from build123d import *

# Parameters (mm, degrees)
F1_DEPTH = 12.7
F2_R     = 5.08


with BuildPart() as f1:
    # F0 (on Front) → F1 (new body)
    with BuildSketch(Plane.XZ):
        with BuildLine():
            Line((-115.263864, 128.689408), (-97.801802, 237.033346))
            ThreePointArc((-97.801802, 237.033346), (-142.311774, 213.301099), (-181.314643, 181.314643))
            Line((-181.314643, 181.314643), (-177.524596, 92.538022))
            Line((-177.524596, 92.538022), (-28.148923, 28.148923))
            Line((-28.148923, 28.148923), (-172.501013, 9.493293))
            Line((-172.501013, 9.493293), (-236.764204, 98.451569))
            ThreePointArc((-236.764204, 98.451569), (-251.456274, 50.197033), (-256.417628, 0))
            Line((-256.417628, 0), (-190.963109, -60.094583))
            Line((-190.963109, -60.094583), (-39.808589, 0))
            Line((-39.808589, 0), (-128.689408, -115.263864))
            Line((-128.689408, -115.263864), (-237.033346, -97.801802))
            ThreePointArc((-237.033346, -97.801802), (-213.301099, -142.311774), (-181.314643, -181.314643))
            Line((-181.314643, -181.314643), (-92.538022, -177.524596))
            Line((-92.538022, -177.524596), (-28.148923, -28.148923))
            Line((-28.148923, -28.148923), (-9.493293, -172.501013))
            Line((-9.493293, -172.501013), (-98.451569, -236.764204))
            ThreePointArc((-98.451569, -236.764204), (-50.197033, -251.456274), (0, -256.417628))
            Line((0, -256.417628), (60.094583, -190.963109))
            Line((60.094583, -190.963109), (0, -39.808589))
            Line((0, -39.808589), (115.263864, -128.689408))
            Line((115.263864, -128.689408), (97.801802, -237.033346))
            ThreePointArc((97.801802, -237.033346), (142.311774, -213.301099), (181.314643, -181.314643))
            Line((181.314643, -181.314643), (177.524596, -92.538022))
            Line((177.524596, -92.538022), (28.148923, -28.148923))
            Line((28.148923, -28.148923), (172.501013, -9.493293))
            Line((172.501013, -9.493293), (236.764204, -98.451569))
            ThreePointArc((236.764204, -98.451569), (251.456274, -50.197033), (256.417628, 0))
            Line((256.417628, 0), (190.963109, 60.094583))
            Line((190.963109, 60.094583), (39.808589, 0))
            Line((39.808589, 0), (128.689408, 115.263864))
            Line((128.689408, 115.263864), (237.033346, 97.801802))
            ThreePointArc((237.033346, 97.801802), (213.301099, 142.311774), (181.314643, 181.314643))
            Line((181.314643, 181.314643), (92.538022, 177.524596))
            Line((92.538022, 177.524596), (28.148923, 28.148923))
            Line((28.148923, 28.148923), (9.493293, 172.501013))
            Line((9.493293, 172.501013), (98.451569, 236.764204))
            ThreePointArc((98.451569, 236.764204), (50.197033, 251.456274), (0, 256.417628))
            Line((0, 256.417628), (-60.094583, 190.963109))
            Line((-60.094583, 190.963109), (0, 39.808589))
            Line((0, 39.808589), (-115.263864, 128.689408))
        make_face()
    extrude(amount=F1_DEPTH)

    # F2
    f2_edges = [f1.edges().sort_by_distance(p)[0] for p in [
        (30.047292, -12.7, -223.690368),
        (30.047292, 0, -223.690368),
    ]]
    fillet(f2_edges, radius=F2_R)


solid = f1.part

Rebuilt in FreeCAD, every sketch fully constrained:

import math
import FreeCAD as App
import Part
import Sketcher

V = App.Vector
Q = App.Units.Quantity


def edges_at(feature, points):
    """Names of the edges that pass closest to the given points."""
    edges = feature.Shape.Edges
    near = lambda p: min(range(len(edges)), key=lambda i: edges[i].distToShape(Part.Vertex(*p))[0])
    return sorted({f"Edge{near(p) + 1}" for p in points})

doc = App.newDocument("Part")
body = doc.addObject("PartDesign::Body", "Body")

# Sketch on XZ plane
sketch1 = body.newObject("Sketcher::SketchObject", "Sketch")
sketch1.AttachmentSupport = (doc.getObject("XZ_Plane"), [""])
sketch1.MapMode = "FlatFace"
sketch1.addGeometry(Part.LineSegment(V(-115, 129, 0), V(-98, 237, 0)), False)
sketch1.addGeometry(Part.ArcOfCircle(Part.Circle(V(0, 0, 0), V(0, 0, 1), 256), math.radians(112), math.radians(135)), False)
sketch1.addGeometry(Part.LineSegment(V(-181, 181, 0), V(-178, 93, 0)), False)
sketch1.addGeometry(Part.LineSegment(V(-178, 93, 0), V(-28, 28, 0)), False)
sketch1.addGeometry(Part.LineSegment(V(-28, 28, 0), V(-173, 9, 0)), False)
sketch1.addGeometry(Part.LineSegment(V(-173, 9, 0), V(-237, 98, 0)), False)
sketch1.addGeometry(Part.ArcOfCircle(Part.Circle(V(0, 0, 0), V(0, 0, 1), 256), math.radians(157), math.radians(180)), False)
sketch1.addGeometry(Part.LineSegment(V(-256, 0, 0), V(-191, -60, 0)), False)
sketch1.addGeometry(Part.LineSegment(V(-191, -60, 0), V(-40, 0, 0)), False)
sketch1.addGeometry(Part.LineSegment(V(-40, 0, 0), V(-129, -115, 0)), False)
sketch1.addGeometry(Part.LineSegment(V(-129, -115, 0), V(-237, -98, 0)), False)
sketch1.addGeometry(Part.ArcOfCircle(Part.Circle(V(0, 0, 0), V(0, 0, 1), 256), math.radians(-158), math.radians(-135)), False)
sketch1.addGeometry(Part.LineSegment(V(-181, -181, 0), V(-93, -178, 0)), False)
sketch1.addGeometry(Part.LineSegment(V(-93, -178, 0), V(-28, -28, 0)), False)
sketch1.addGeometry(Part.LineSegment(V(-28, -28, 0), V(-9, -173, 0)), False)
sketch1.addGeometry(Part.LineSegment(V(-9, -173, 0), V(-98, -237, 0)), False)
sketch1.addGeometry(Part.ArcOfCircle(Part.Circle(V(0, 0, 0), V(0, 0, 1), 256), math.radians(-113), math.radians(-90)), False)
sketch1.addGeometry(Part.LineSegment(V(0, -256, 0), V(60, -191, 0)), False)
sketch1.addGeometry(Part.LineSegment(V(60, -191, 0), V(0, -40, 0)), False)
sketch1.addGeometry(Part.LineSegment(V(0, -40, 0), V(115, -129, 0)), False)
sketch1.addGeometry(Part.LineSegment(V(115, -129, 0), V(98, -237, 0)), False)
sketch1.addGeometry(Part.ArcOfCircle(Part.Circle(V(0, 0, 0), V(0, 0, 1), 256), math.radians(-68), math.radians(-45)), False)
sketch1.addGeometry(Part.LineSegment(V(181, -181, 0), V(178, -93, 0)), False)
sketch1.addGeometry(Part.LineSegment(V(178, -93, 0), V(28, -28, 0)), False)
sketch1.addGeometry(Part.LineSegment(V(28, -28, 0), V(173, -9, 0)), False)
sketch1.addGeometry(Part.LineSegment(V(173, -9, 0), V(237, -98, 0)), False)
sketch1.addGeometry(Part.ArcOfCircle(Part.Circle(V(0, 0, 0), V(0, 0, 1), 256), math.radians(-23), math.radians(0)), False)
sketch1.addGeometry(Part.LineSegment(V(256, 0, 0), V(191, 60, 0)), False)
sketch1.addGeometry(Part.LineSegment(V(191, 60, 0), V(40, 0, 0)), False)
sketch1.addGeometry(Part.LineSegment(V(40, 0, 0), V(129, 115, 0)), False)
sketch1.addGeometry(Part.LineSegment(V(129, 115, 0), V(237, 98, 0)), False)
sketch1.addGeometry(Part.ArcOfCircle(Part.Circle(V(0, 0, 0), V(0, 0, 1), 256), math.radians(22), math.radians(45)), False)
sketch1.addGeometry(Part.LineSegment(V(181, 181, 0), V(93, 178, 0)), False)
sketch1.addGeometry(Part.LineSegment(V(93, 178, 0), V(28, 28, 0)), False)
sketch1.addGeometry(Part.LineSegment(V(28, 28, 0), V(9, 173, 0)), False)
sketch1.addGeometry(Part.LineSegment(V(9, 173, 0), V(98, 237, 0)), False)
sketch1.addGeometry(Part.ArcOfCircle(Part.Circle(V(0, 0, 0), V(0, 0, 1), 256), math.radians(67), math.radians(90)), False)
sketch1.addGeometry(Part.LineSegment(V(0, 256, 0), V(-60, 191, 0)), False)
sketch1.addGeometry(Part.LineSegment(V(-60, 191, 0), V(0, 40, 0)), False)
sketch1.addGeometry(Part.LineSegment(V(0, 40, 0), V(-115, 129, 0)), False)
sketch1.addConstraint(Sketcher.Constraint("Coincident", 0, 2, 1, 1))
sketch1.addConstraint(Sketcher.Constraint("Coincident", 1, 2, 2, 1))
sketch1.addConstraint(Sketcher.Constraint("Coincident", 2, 2, 3, 1))
sketch1.addConstraint(Sketcher.Constraint("Coincident", 3, 2, 4, 1))
sketch1.addConstraint(Sketcher.Constraint("Coincident", 4, 2, 5, 1))
sketch1.addConstraint(Sketcher.Constraint("Coincident", 5, 2, 6, 1))
sketch1.addConstraint(Sketcher.Constraint("Coincident", 6, 2, 7, 1))
sketch1.addConstraint(Sketcher.Constraint("Coincident", 7, 2, 8, 1))
sketch1.addConstraint(Sketcher.Constraint("Coincident", 8, 2, 9, 1))
sketch1.addConstraint(Sketcher.Constraint("Coincident", 9, 2, 10, 1))
sketch1.addConstraint(Sketcher.Constraint("Coincident", 10, 2, 11, 1))
sketch1.addConstraint(Sketcher.Constraint("Coincident", 11, 2, 12, 1))
sketch1.addConstraint(Sketcher.Constraint("Coincident", 12, 2, 13, 1))
sketch1.addConstraint(Sketcher.Constraint("Coincident", 13, 2, 14, 1))
sketch1.addConstraint(Sketcher.Constraint("Coincident", 14, 2, 15, 1))
sketch1.addConstraint(Sketcher.Constraint("Coincident", 15, 2, 16, 1))
sketch1.addConstraint(Sketcher.Constraint("Coincident", 16, 2, 17, 1))
sketch1.addConstraint(Sketcher.Constraint("Coincident", 17, 2, 18, 1))
sketch1.addConstraint(Sketcher.Constraint("Coincident", 18, 2, 19, 1))
sketch1.addConstraint(Sketcher.Constraint("Coincident", 19, 2, 20, 1))
sketch1.addConstraint(Sketcher.Constraint("Coincident", 20, 2, 21, 1))
sketch1.addConstraint(Sketcher.Constraint("Coincident", 21, 2, 22, 1))
sketch1.addConstraint(Sketcher.Constraint("Coincident", 22, 2, 23, 1))
sketch1.addConstraint(Sketcher.Constraint("Coincident", 23, 2, 24, 1))
sketch1.addConstraint(Sketcher.Constraint("Coincident", 24, 2, 25, 1))
sketch1.addConstraint(Sketcher.Constraint("Coincident", 25, 2, 26, 1))
sketch1.addConstraint(Sketcher.Constraint("Coincident", 26, 2, 27, 1))
sketch1.addConstraint(Sketcher.Constraint("Coincident", 27, 2, 28, 1))
sketch1.addConstraint(Sketcher.Constraint("Coincident", 28, 2, 29, 1))
sketch1.addConstraint(Sketcher.Constraint("Coincident", 29, 2, 30, 1))
sketch1.addConstraint(Sketcher.Constraint("Coincident", 30, 2, 31, 1))
sketch1.addConstraint(Sketcher.Constraint("Coincident", 31, 2, 32, 1))
sketch1.addConstraint(Sketcher.Constraint("Coincident", 32, 2, 33, 1))
sketch1.addConstraint(Sketcher.Constraint("Coincident", 33, 2, 34, 1))
sketch1.addConstraint(Sketcher.Constraint("Coincident", 34, 2, 35, 1))
sketch1.addConstraint(Sketcher.Constraint("Coincident", 35, 2, 36, 1))
sketch1.addConstraint(Sketcher.Constraint("Coincident", 36, 2, 37, 1))
sketch1.addConstraint(Sketcher.Constraint("Coincident", 37, 2, 38, 1))
sketch1.addConstraint(Sketcher.Constraint("Coincident", 38, 2, 39, 1))
sketch1.addConstraint(Sketcher.Constraint("Coincident", 39, 2, 0, 1))
sketch1.addConstraint(Sketcher.Constraint("Coincident", 6, 3, -1, 1))
sketch1.addConstraint(Sketcher.Constraint("Coincident", 16, 3, -1, 1))
sketch1.addConstraint(Sketcher.Constraint("Coincident", 26, 3, -1, 1))
sketch1.addConstraint(Sketcher.Constraint("Coincident", 36, 3, -1, 1))
sketch1.addConstraint(Sketcher.Constraint("Equal", 1, 11))
sketch1.addConstraint(Sketcher.Constraint("Equal", 6, 16))
sketch1.addConstraint(Sketcher.Constraint("Equal", 11, 21))
sketch1.addConstraint(Sketcher.Constraint("Equal", 16, 26))
sketch1.addConstraint(Sketcher.Constraint("Equal", 21, 31))
sketch1.addConstraint(Sketcher.Constraint("Equal", 26, 36))
sketch1.addConstraint(Sketcher.Constraint("Symmetric", 1, 3, 21, 3, -1, 1))
sketch1.addConstraint(Sketcher.Constraint("Symmetric", 11, 3, 31, 3, -1, 1))
sketch1.addConstraint(Sketcher.Constraint("Symmetric", 2, 2, 22, 2, -1, 1))
sketch1.addConstraint(Sketcher.Constraint("Symmetric", 3, 2, 23, 2, -1, 1))
sketch1.addConstraint(Sketcher.Constraint("Symmetric", 4, 2, 24, 2, -1, 1))
sketch1.addConstraint(Sketcher.Constraint("Symmetric", 7, 2, 27, 2, -1, 1))
sketch1.addConstraint(Sketcher.Constraint("Symmetric", 8, 2, 28, 2, -1, 1))
sketch1.addConstraint(Sketcher.Constraint("Symmetric", 9, 2, 29, 2, -1, 1))
sketch1.addConstraint(Sketcher.Constraint("Symmetric", 12, 2, 32, 2, -1, 1))
sketch1.addConstraint(Sketcher.Constraint("Symmetric", 13, 2, 33, 2, -1, 1))
sketch1.addConstraint(Sketcher.Constraint("Symmetric", 14, 2, 34, 2, -1, 1))
sketch1.addConstraint(Sketcher.Constraint("Symmetric", 17, 2, 37, 2, -1, 1))
sketch1.addConstraint(Sketcher.Constraint("Symmetric", 18, 2, 38, 2, -1, 1))
sketch1.addConstraint(Sketcher.Constraint("Symmetric", 19, 2, 39, 2, -1, 1))
sketch1.addConstraint(Sketcher.Constraint("Symmetric", 11, 2, 21, 2, -2))
sketch1.addConstraint(Sketcher.Constraint("Symmetric", 13, 2, 23, 2, -2))
sketch1.addConstraint(Sketcher.Constraint("PointOnObject", 6, 2, -1))
sketch1.addConstraint(Sketcher.Constraint("PointOnObject", 8, 2, -1))
sketch1.addConstraint(Sketcher.Constraint("PointOnObject", 16, 2, -2))
sketch1.addConstraint(Sketcher.Constraint("PointOnObject", 18, 2, -2))
sketch1.addConstraint(Sketcher.Constraint("PointOnObject", 26, 2, -1))
sketch1.addConstraint(Sketcher.Constraint("PointOnObject", 36, 2, -2))
sketch1.addConstraint(Sketcher.Constraint("Perpendicular", 0, 10))
sketch1.addConstraint(Sketcher.Constraint("Perpendicular", 2, 12))
sketch1.addConstraint(Sketcher.Constraint("Perpendicular", 3, 13))
sketch1.addConstraint(Sketcher.Constraint("Perpendicular", 4, 14))
sketch1.addConstraint(Sketcher.Constraint("Perpendicular", 5, 15))
sketch1.addConstraint(Sketcher.Constraint("Perpendicular", 7, 17))
sketch1.addConstraint(Sketcher.Constraint("Perpendicular", 8, 18))
sketch1.addConstraint(Sketcher.Constraint("Perpendicular", 9, 19))
sketch1.addConstraint(Sketcher.Constraint("Perpendicular", 10, 20))
sketch1.addConstraint(Sketcher.Constraint("Perpendicular", 12, 22))
sketch1.addConstraint(Sketcher.Constraint("Perpendicular", 15, 25))
sketch1.addConstraint(Sketcher.Constraint("Perpendicular", 20, 30))
sketch1.addConstraint(Sketcher.Constraint("Perpendicular", 22, 32))
sketch1.addConstraint(Sketcher.Constraint("Perpendicular", 25, 35))
sketch1.addConstraint(Sketcher.Constraint("Equal", 0, 5))
sketch1.addConstraint(Sketcher.Constraint("Equal", 2, 7))
sketch1.addConstraint(Sketcher.Constraint("Equal", 3, 8))
sketch1.addConstraint(Sketcher.Constraint("Equal", 4, 9))
sketch1.addConstraint(Sketcher.Constraint("Equal", 5, 10))
sketch1.addConstraint(Sketcher.Constraint("Equal", 7, 12))
sketch1.addConstraint(Sketcher.Constraint("Equal", 9, 14))
sketch1.addConstraint(Sketcher.Constraint("Equal", 10, 15))
sketch1.addConstraint(Sketcher.Constraint("Equal", 12, 17))
sketch1.addConstraint(Sketcher.Constraint("Equal", 14, 19))
sketch1.addConstraint(Sketcher.Constraint("Radius", 1, Q("256.417598 mm")))
sketch1.addConstraint(Sketcher.Constraint("Radius", 6, Q("256.417626 mm")))
sketch1.addConstraint(Sketcher.Constraint("DistanceX", 5, 2, 3, 2, Q("8.2132 in")))
sketch1.addConstraint(Sketcher.Constraint("DistanceX", 0, 2, -1, 1, Q("97.801802 mm")))
sketch1.addConstraint(Sketcher.Constraint("DistanceY", 1, 3, 3, 2, Q("28.148898 mm")))
sketch1.addConstraint(Sketcher.Constraint("DistanceX", 5, 2, 0, 2, Q("138.962402 mm")))
sketch1.addConstraint(Sketcher.Constraint("DistanceX", 7, 2, 9, 2, Q("62.273701 mm")))
sketch1.addConstraint(Sketcher.Constraint("Distance", 0, Q("109.742118 mm")))
sketch1.addConstraint(Sketcher.Constraint("DistanceY", -1, 1, 2, 2, Q("92.538022 mm")))
sketch1.addConstraint(Sketcher.Constraint("DistanceX", 7, 2, -1, 1, Q("190.963109 mm")))
sketch1.addConstraint(Sketcher.Constraint("DistanceX", 8, 2, -1, 1, Q("39.808589 mm")))
sketch1.addConstraint(Sketcher.Constraint("DistanceY", 1, 3, 0, 2, Q("237.033321 mm")))
pad1 = body.newObject("PartDesign::Pad", "Pad")
pad1.Profile = sketch1
pad1.Length = Q("0.5 in")
doc.recompute()

fillet = body.newObject("PartDesign::Fillet", "Fillet")
fillet.Base = (pad1, edges_at(pad1, [(30.047, -12.7, -223.69), (30.047, 0, -223.69)]))
fillet.Radius = Q("0.2 in")

doc.recompute()
